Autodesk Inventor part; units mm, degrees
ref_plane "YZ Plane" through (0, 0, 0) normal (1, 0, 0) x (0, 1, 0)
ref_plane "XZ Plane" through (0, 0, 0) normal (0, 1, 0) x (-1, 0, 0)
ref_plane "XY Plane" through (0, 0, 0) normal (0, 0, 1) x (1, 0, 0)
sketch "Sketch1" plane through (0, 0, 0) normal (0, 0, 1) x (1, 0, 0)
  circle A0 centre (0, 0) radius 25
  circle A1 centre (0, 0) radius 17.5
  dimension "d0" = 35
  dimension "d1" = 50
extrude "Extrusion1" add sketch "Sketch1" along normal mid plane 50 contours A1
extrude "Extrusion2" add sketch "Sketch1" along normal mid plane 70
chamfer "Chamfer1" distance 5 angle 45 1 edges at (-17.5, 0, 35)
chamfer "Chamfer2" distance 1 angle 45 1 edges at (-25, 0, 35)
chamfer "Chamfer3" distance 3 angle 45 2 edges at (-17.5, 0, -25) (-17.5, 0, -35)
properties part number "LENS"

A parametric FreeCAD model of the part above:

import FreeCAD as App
import Part
import Sketcher
from FreeCAD import Vector


def edges_at(feature, points):
    """Names of the edges that pass closest to the given points."""
    edges = feature.Shape.Edges
    near = lambda p: min(range(len(edges)), key=lambda i: edges[i].distToShape(Part.Vertex(*p))[0])
    return sorted({f"Edge{near(p) + 1}" for p in points})

doc = App.newDocument("Part")
params = doc.addObject("Spreadsheet::Sheet", "Params")
for row, (alias, value) in enumerate([
    ("sketch1_diameter", "35 mm"),
    ("pad1_length", "50 mm"),
    ("sketch2_diameter", "50 mm"),
    ("sketch2_diameter2", "35 mm"),
    ("pad2_length", "70 mm"),
    ("chamfer_size", "5 mm"),
    ("chamfer2_size", "1 mm"),
    ("chamfer3_size", "3 mm"),
], start=1):
    params.set(f"A{row}", alias)
    params.set(f"B{row}", "=" + value)
    params.setAlias(f"B{row}", alias)

body = doc.addObject("PartDesign::Body", "Body")

# Sketch on XY plane
sketch1 = body.newObject("Sketcher::SketchObject", "Sketch")
sketch1.AttachmentSupport = (doc.getObject("XY_Plane"), [""])
sketch1.MapMode = "FlatFace"
sketch1.addGeometry(Part.Circle(Vector(0, 0, 0), Vector(0, 0, 1), 17.5), False)
sketch1.addConstraint([
    Sketcher.Constraint("Coincident", 0, 3, -1, 1),
    Sketcher.Constraint("Diameter", 0, 35.0),
])
sketch1.setExpression("Constraints[1]", "Params.sketch1_diameter")
pad1 = body.newObject("PartDesign::Pad", "Pad")
pad1.Profile = sketch1
pad1.setExpression("Length", "Params.pad1_length")
pad1.Midplane = True

# Sketch on XY plane
sketch2 = body.newObject("Sketcher::SketchObject", "Sketch001")
sketch2.AttachmentSupport = (doc.getObject("XY_Plane"), [""])
sketch2.MapMode = "FlatFace"
sketch2.addGeometry([
    Part.Circle(Vector(0, 0, 0), Vector(0, 0, 1), 25),
    Part.Circle(Vector(0, 0, 0), Vector(0, 0, 1), 17.5),
], False)
sketch2.addConstraint([
    Sketcher.Constraint("Coincident", 0, 3, -1, 1),
    Sketcher.Constraint("Coincident", 1, 3, -1, 1),
    Sketcher.Constraint("Diameter", 0, 50.0),
    Sketcher.Constraint("Diameter", 1, 35.0),
])
sketch2.setExpression("Constraints[2]", "Params.sketch2_diameter")
sketch2.setExpression("Constraints[3]", "Params.sketch2_diameter2")
pad2 = body.newObject("PartDesign::Pad", "Pad001")
pad2.Profile = sketch2
pad2.setExpression("Length", "Params.pad2_length")
pad2.Midplane = True
doc.recompute()

chamfer = body.newObject("PartDesign::Chamfer", "Chamfer")
chamfer.Base = (pad2, edges_at(pad2, [(-17.5, 0, 35)]))
chamfer.setExpression("Size", "Params.chamfer_size")
doc.recompute()

chamfer2 = body.newObject("PartDesign::Chamfer", "Chamfer001")
chamfer2.Base = (chamfer, edges_at(chamfer, [(-25, 0, 35)]))
chamfer2.setExpression("Size", "Params.chamfer2_size")
doc.recompute()

chamfer3 = body.newObject("PartDesign::Chamfer", "Chamfer002")
chamfer3.Base = (chamfer2, edges_at(chamfer2, [(-17.5, 0, -25), (-17.5, 0, -35)]))
chamfer3.setExpression("Size", "Params.chamfer3_size")

doc.recompute()
